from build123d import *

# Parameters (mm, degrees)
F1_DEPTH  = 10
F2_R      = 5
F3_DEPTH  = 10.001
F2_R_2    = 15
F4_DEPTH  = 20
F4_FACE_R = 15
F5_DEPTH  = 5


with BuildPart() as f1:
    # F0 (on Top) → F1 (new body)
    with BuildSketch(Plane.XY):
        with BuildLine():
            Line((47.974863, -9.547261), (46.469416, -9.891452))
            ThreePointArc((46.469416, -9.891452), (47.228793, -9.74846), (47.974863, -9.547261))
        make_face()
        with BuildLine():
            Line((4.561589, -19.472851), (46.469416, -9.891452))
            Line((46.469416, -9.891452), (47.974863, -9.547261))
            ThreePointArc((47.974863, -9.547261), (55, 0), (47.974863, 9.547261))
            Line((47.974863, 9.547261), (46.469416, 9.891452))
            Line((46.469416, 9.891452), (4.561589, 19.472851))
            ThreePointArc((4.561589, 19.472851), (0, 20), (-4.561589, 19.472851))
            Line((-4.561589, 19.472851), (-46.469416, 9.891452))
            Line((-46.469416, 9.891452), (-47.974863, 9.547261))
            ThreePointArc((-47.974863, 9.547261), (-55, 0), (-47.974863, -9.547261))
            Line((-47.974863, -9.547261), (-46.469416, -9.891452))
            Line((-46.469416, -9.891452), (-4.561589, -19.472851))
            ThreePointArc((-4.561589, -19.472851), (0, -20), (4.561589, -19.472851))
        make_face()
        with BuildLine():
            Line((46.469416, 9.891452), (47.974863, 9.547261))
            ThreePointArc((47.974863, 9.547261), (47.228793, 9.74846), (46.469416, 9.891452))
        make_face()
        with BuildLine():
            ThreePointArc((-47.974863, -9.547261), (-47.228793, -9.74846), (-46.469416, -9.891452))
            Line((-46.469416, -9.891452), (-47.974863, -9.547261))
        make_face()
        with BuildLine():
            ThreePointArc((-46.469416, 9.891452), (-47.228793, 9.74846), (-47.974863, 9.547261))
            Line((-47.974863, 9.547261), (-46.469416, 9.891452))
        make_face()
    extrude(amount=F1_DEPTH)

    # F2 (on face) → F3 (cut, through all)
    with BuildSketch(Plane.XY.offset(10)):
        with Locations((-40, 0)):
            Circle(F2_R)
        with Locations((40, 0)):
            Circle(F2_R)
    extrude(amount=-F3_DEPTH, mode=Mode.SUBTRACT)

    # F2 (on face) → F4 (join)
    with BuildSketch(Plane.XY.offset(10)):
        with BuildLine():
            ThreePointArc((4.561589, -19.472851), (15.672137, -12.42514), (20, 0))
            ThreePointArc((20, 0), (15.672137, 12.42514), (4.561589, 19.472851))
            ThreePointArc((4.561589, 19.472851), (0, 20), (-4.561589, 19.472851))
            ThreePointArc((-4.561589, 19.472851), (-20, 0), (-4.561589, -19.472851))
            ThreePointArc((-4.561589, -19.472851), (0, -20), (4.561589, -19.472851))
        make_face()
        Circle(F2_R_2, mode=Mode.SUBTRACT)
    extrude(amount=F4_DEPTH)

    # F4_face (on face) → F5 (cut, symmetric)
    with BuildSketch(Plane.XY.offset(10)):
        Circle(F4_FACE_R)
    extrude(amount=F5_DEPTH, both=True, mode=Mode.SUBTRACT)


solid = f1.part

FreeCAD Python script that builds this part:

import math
import FreeCAD as App
import Part
import Sketcher
Q = App.Units.Quantity

doc = App.newDocument("Part")
body = doc.addObject("PartDesign::Body", "Body")

sketch1 = doc.addObject("Sketcher::SketchObject", "Sketch")
body.addObject(sketch1)
sketch1.AttachmentSupport = (doc.XY_Plane, [""])
sketch1.MapMode = "FlatFace"
sketch1.addGeometry(Part.ArcOfCircle(Part.Circle(App.Vector(44.999948, 0.000223, 0), App.Vector(0, 0, 1), 10.000228), math.radians(-81.550163), math.radians(-72.693408)), False)
sketch1.addGeometry(Part.ArcOfCircle(Part.Circle(App.Vector(45, 0, 0), App.Vector(0, 0, 1), 10), math.radians(-72.693312), math.radians(72.693312)), False)
sketch1.addGeometry(Part.ArcOfCircle(Part.Circle(App.Vector(44.999948, -0.000223, 0), App.Vector(0, 0, 1), 10.000228), math.radians(72.693408), math.radians(81.550163)), False)
sketch1.addGeometry(Part.LineSegment(App.Vector(46.469416, 9.891452, 0), App.Vector(4.561589, 19.472851, 0)), False)
sketch1.addGeometry(Part.ArcOfCircle(Part.Circle(App.Vector(0, -0.000019, 0), App.Vector(0, 0, 1), 20.000019), math.radians(76.815986), math.radians(103.184014)), False)
sketch1.addGeometry(Part.LineSegment(App.Vector(-4.561589, 19.472851, 0), App.Vector(-46.469416, 9.891452, 0)), False)
sketch1.addGeometry(Part.ArcOfCircle(Part.Circle(App.Vector(-44.999948, -0.000223, 0), App.Vector(0, 0, 1), 10.000228), math.radians(98.449837), math.radians(107.306592)), False)
sketch1.addGeometry(Part.ArcOfCircle(Part.Circle(App.Vector(-45, 0, 0), App.Vector(0, 0, 1), 10), math.radians(107.306688), math.radians(252.693312)), False)
sketch1.addGeometry(Part.ArcOfCircle(Part.Circle(App.Vector(-44.999948, 0.000223, 0), App.Vector(0, 0, 1), 10.000228), math.radians(-107.306592), math.radians(-98.449837)), False)
sketch1.addGeometry(Part.LineSegment(App.Vector(-46.469416, -9.891452, 0), App.Vector(-4.561589, -19.472851, 0)), False)
sketch1.addGeometry(Part.ArcOfCircle(Part.Circle(App.Vector(0, 0.000019, 0), App.Vector(0, 0, 1), 20.000019), math.radians(-103.184014), math.radians(-76.815986)), False)
sketch1.addGeometry(Part.LineSegment(App.Vector(4.561589, -19.472851, 0), App.Vector(46.469416, -9.891452, 0)), False)
sketch1.addConstraint(Sketcher.Constraint("Tangent", 0, 2, 1, 1))
sketch1.addConstraint(Sketcher.Constraint("Tangent", 1, 2, 2, 1))
sketch1.addConstraint(Sketcher.Constraint("Coincident", 2, 2, 3, 1))
sketch1.addConstraint(Sketcher.Constraint("Coincident", 3, 2, 4, 1))
sketch1.addConstraint(Sketcher.Constraint("Coincident", 4, 2, 5, 1))
sketch1.addConstraint(Sketcher.Constraint("Coincident", 5, 2, 6, 1))
sketch1.addConstraint(Sketcher.Constraint("Tangent", 6, 2, 7, 1))
sketch1.addConstraint(Sketcher.Constraint("Tangent", 7, 2, 8, 1))
sketch1.addConstraint(Sketcher.Constraint("Coincident", 8, 2, 9, 1))
sketch1.addConstraint(Sketcher.Constraint("Coincident", 9, 2, 10, 1))
sketch1.addConstraint(Sketcher.Constraint("Coincident", 10, 2, 11, 1))
sketch1.addConstraint(Sketcher.Constraint("Coincident", 11, 2, 0, 1))
sketch1.addConstraint(Sketcher.Constraint("Equal", 0, 2))
sketch1.addConstraint(Sketcher.Constraint("Equal", 2, 6))
sketch1.addConstraint(Sketcher.Constraint("Equal", 1, 7))
sketch1.addConstraint(Sketcher.Constraint("Equal", 6, 8))
sketch1.addConstraint(Sketcher.Constraint("Equal", 4, 10))
sketch1.addConstraint(Sketcher.Constraint("Symmetric", 0, 3, 6, 3, -1, 1))
sketch1.addConstraint(Sketcher.Constraint("Symmetric", 4, 3, 10, 3, -1, 1))
sketch1.addConstraint(Sketcher.Constraint("Symmetric", 3, 2, 4, 2, -2))
sketch1.addConstraint(Sketcher.Constraint("Symmetric", 2, 2, 5, 2, -2))
sketch1.addConstraint(Sketcher.Constraint("Parallel", 3, 9))
sketch1.addConstraint(Sketcher.Constraint("Parallel", 5, 11))
sketch1.addConstraint(Sketcher.Constraint("Horizontal", 1, 2, 6, 2))
sketch1.addConstraint(Sketcher.Constraint("Horizontal", 0, 2, 7, 2))
sketch1.addConstraint(Sketcher.Constraint("Horizontal", 9, 2, 10, 2))
sketch1.addConstraint(Sketcher.Constraint("Vertical", 0, 2, 1, 2))
sketch1.addConstraint(Sketcher.Constraint("Vertical", 5, 2, 8, 2))
sketch1.addConstraint(Sketcher.Constraint("Radius", 1, Q("10 mm")))
sketch1.addConstraint(Sketcher.Constraint("DistanceX", -1, 1, 1, 3, Q("45 mm")))
sketch1.addConstraint(Sketcher.Constraint("Radius", 0, Q("10.000228 mm")))
sketch1.addConstraint(Sketcher.Constraint("Radius", 4, Q("20.000019 mm")))
sketch1.addConstraint(Sketcher.Constraint("DistanceY", 2, 2, 3, 2, Q("9.581399 mm")))
sketch1.addConstraint(Sketcher.Constraint("DistanceY", 9, 2, 4, 2, Q("38.945702 mm")))
sketch1.addConstraint(Sketcher.Constraint("DistanceY", 0, 2, -1, 1, Q("9.547261 mm")))
sketch1.addConstraint(Sketcher.Constraint("DistanceX", -1, 1, 3, 2, Q("4.561589 mm")))
pad1 = doc.addObject("PartDesign::Pad", "Pad")
body.addObject(pad1)
pad1.Profile = sketch1
pad1.Length = 10

sketch2 = doc.addObject("Sketcher::SketchObject", "Sketch001")
body.addObject(sketch2)
sketch2.AttachmentSupport = (doc.XY_Plane, [""])
sketch2.MapMode = "FlatFace"
sketch2.AttachmentOffset = App.Placement(App.Vector(0, 0, 10), App.Rotation())
sketch2.addGeometry(Part.Circle(App.Vector(-40, 0, 0), App.Vector(0, 0, 1), 5), False)
sketch2.addGeometry(Part.Circle(App.Vector(40, 0, 0), App.Vector(0, 0, 1), 5), False)
sketch2.addConstraint(Sketcher.Constraint("Equal", 0, 1))
sketch2.addConstraint(Sketcher.Constraint("Symmetric", 0, 3, 1, 3, -1, 1))
sketch2.addConstraint(Sketcher.Constraint("PointOnObject", 0, 3, -1))
sketch2.addConstraint(Sketcher.Constraint("Diameter", 0, Q("10 mm")))
sketch2.addConstraint(Sketcher.Constraint("DistanceX", 0, 3, -1, 1, Q("40 mm")))
pocket1 = doc.addObject("PartDesign::Pocket", "Pocket")
body.addObject(pocket1)
pocket1.Profile = sketch2
pocket1.Type = "ThroughAll"

sketch3 = doc.addObject("Sketcher::SketchObject", "Sketch002")
body.addObject(sketch3)
sketch3.AttachmentSupport = (doc.XY_Plane, [""])
sketch3.MapMode = "FlatFace"
sketch3.AttachmentOffset = App.Placement(App.Vector(0, 0, 10), App.Rotation())
sketch3.addGeometry(Part.ArcOfCircle(Part.Circle(App.Vector(0, 0, 0), App.Vector(0, 0, 1), 20), math.radians(-77), math.radians(0)), False)
sketch3.addGeometry(Part.ArcOfCircle(Part.Circle(App.Vector(0, 0, 0), App.Vector(0, 0, 1), 20), math.radians(0), math.radians(77)), False)
sketch3.addGeometry(Part.ArcOfCircle(Part.Circle(App.Vector(0, 0, 0), App.Vector(0, 0, 1), 20), math.radians(77), math.radians(103)), False)
sketch3.addGeometry(Part.ArcOfCircle(Part.Circle(App.Vector(0, 0, 0), App.Vector(0, 0, 1), 20), math.radians(103), math.radians(257)), False)
sketch3.addGeometry(Part.ArcOfCircle(Part.Circle(App.Vector(0, 0, 0), App.Vector(0, 0, 1), 20), math.radians(-103), math.radians(-77)), False)
sketch3.addGeometry(Part.Circle(App.Vector(0, 0, 0), App.Vector(0, 0, 1), 15), False)
sketch3.addConstraint(Sketcher.Constraint("Tangent", 0, 2, 1, 1))
sketch3.addConstraint(Sketcher.Constraint("Tangent", 1, 2, 2, 1))
sketch3.addConstraint(Sketcher.Constraint("Tangent", 2, 2, 3, 1))
sketch3.addConstraint(Sketcher.Constraint("Tangent", 3, 2, 4, 1))
sketch3.addConstraint(Sketcher.Constraint("Tangent", 4, 2, 0, 1))
sketch3.addConstraint(Sketcher.Constraint("Coincident", 0, 3, -1, 1))
sketch3.addConstraint(Sketcher.Constraint("Coincident", 3, 3, -1, 1))
sketch3.addConstraint(Sketcher.Constraint("Coincident", 5, 3, -1, 1))
sketch3.addConstraint(Sketcher.Constraint("PointOnObject", 0, 2, -1))
sketch3.addConstraint(Sketcher.Constraint("Horizontal", 1, 2, 2, 2))
sketch3.addConstraint(Sketcher.Constraint("Horizontal", 3, 2, 4, 2))
sketch3.addConstraint(Sketcher.Constraint("Vertical", 2, 2, 3, 2))
sketch3.addConstraint(Sketcher.Constraint("Diameter", 5, Q("30 mm")))
sketch3.addConstraint(Sketcher.Constraint("Radius", 3, Q("20.000001 mm")))
sketch3.addConstraint(Sketcher.Constraint("DistanceX", -1, 1, 1, 2, Q("4.561589 mm")))
pad2 = doc.addObject("PartDesign::Pad", "Pad001")
body.addObject(pad2)
pad2.Profile = sketch3
pad2.Length = 20

sketch4 = doc.addObject("Sketcher::SketchObject", "Sketch003")
body.addObject(sketch4)
sketch4.AttachmentSupport = (doc.XY_Plane, [""])
sketch4.MapMode = "FlatFace"
sketch4.AttachmentOffset = App.Placement(App.Vector(0, 0, 10), App.Rotation())
sketch4.addGeometry(Part.Circle(App.Vector(0, 0, 0), App.Vector(0, 0, 1), 15), False)
sketch4.addConstraint(Sketcher.Constraint("Coincident", 0, 3, -1, 1))
sketch4.addConstraint(Sketcher.Constraint("Diameter", 0, Q("30 mm")))
pocket2 = doc.addObject("PartDesign::Pocket", "Pocket001")
body.addObject(pocket2)
pocket2.Profile = sketch4
pocket2.Length = 10
pocket2.Midplane = True

doc.recompute()
